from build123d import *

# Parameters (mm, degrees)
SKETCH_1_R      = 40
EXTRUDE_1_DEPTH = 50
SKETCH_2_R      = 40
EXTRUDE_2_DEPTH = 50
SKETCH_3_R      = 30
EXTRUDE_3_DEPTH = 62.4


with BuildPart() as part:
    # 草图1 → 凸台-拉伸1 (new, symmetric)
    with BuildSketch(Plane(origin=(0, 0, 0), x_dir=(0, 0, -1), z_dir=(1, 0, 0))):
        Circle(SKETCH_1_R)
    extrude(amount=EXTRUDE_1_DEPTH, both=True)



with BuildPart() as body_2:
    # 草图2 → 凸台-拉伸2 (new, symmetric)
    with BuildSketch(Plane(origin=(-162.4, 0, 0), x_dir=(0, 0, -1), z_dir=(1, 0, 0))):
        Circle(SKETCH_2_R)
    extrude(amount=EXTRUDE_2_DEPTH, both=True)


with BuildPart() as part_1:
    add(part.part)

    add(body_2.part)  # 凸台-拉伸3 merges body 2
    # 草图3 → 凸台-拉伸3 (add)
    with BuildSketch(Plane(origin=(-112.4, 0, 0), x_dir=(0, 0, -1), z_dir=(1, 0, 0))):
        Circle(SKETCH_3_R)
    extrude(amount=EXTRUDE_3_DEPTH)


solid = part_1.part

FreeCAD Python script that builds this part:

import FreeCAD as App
import Part
import Sketcher
from FreeCAD import Vector
Q = App.Units.Quantity

doc = App.newDocument("Part")
body = doc.addObject("PartDesign::Body", "Body")

# Sketch on YZ plane
sketch1 = doc.addObject("Sketcher::SketchObject", "Sketch")
body.addObject(sketch1)
sketch1.AttachmentSupport = (doc.YZ_Plane, [""])
sketch1.MapMode = "FlatFace"
sketch1.addGeometry(Part.Circle(Vector(0, 0, 0), Vector(0, 0, 1), 40), False)
sketch1.addConstraint([
    Sketcher.Constraint("Coincident", 0, 3, -1, 1),
    Sketcher.Constraint("Diameter", 0, Q("80 mm")),
])
pad1 = doc.addObject("PartDesign::Pad", "Pad")
body.addObject(pad1)
pad1.Profile = sketch1
pad1.Length = 100
pad1.Midplane = True
body2 = doc.addObject("PartDesign::Body", "Body001")

# Sketch on YZ plane
sketch2 = doc.addObject("Sketcher::SketchObject", "Sketch001")
body2.addObject(sketch2)
sketch2.AttachmentSupport = (doc.getObject("YZ_Plane001"), [""])
sketch2.MapMode = "FlatFace"
sketch2.AttachmentOffset = App.Placement(Vector(0, 0, -162.4), App.Rotation())
sketch2.addGeometry(Part.Circle(Vector(0, 0, 0), Vector(0, 0, 1), 40), False)
sketch2.addConstraint([
    Sketcher.Constraint("Coincident", 0, 3, -1, 1),
    Sketcher.Constraint("Diameter", 0, Q("80 mm")),
])
pad2 = doc.addObject("PartDesign::Pad", "Pad001")
body2.addObject(pad2)
pad2.Profile = sketch2
pad2.Length = 100
pad2.Midplane = True
body.AllowCompound = True
doc.recompute()

boolean = doc.addObject("PartDesign::Boolean", "Boolean")
body.addObject(boolean)
boolean.Type = "Fuse"
boolean.addObjects([body2])

# Sketch on YZ plane
sketch3 = doc.addObject("Sketcher::SketchObject", "Sketch002")
body.addObject(sketch3)
sketch3.AttachmentSupport = (doc.YZ_Plane, [""])
sketch3.MapMode = "FlatFace"
sketch3.AttachmentOffset = App.Placement(Vector(0, 0, -112.4), App.Rotation())
sketch3.addGeometry(Part.Circle(Vector(0, 0, 0), Vector(0, 0, 1), 30), False)
sketch3.addConstraint([
    Sketcher.Constraint("Coincident", 0, 3, -1, 1),
    Sketcher.Constraint("Diameter", 0, Q("60 mm")),
])
pad3 = doc.addObject("PartDesign::Pad", "Pad002")
body.addObject(pad3)
pad3.Profile = sketch3
pad3.Length = 62.4

doc.recompute()
